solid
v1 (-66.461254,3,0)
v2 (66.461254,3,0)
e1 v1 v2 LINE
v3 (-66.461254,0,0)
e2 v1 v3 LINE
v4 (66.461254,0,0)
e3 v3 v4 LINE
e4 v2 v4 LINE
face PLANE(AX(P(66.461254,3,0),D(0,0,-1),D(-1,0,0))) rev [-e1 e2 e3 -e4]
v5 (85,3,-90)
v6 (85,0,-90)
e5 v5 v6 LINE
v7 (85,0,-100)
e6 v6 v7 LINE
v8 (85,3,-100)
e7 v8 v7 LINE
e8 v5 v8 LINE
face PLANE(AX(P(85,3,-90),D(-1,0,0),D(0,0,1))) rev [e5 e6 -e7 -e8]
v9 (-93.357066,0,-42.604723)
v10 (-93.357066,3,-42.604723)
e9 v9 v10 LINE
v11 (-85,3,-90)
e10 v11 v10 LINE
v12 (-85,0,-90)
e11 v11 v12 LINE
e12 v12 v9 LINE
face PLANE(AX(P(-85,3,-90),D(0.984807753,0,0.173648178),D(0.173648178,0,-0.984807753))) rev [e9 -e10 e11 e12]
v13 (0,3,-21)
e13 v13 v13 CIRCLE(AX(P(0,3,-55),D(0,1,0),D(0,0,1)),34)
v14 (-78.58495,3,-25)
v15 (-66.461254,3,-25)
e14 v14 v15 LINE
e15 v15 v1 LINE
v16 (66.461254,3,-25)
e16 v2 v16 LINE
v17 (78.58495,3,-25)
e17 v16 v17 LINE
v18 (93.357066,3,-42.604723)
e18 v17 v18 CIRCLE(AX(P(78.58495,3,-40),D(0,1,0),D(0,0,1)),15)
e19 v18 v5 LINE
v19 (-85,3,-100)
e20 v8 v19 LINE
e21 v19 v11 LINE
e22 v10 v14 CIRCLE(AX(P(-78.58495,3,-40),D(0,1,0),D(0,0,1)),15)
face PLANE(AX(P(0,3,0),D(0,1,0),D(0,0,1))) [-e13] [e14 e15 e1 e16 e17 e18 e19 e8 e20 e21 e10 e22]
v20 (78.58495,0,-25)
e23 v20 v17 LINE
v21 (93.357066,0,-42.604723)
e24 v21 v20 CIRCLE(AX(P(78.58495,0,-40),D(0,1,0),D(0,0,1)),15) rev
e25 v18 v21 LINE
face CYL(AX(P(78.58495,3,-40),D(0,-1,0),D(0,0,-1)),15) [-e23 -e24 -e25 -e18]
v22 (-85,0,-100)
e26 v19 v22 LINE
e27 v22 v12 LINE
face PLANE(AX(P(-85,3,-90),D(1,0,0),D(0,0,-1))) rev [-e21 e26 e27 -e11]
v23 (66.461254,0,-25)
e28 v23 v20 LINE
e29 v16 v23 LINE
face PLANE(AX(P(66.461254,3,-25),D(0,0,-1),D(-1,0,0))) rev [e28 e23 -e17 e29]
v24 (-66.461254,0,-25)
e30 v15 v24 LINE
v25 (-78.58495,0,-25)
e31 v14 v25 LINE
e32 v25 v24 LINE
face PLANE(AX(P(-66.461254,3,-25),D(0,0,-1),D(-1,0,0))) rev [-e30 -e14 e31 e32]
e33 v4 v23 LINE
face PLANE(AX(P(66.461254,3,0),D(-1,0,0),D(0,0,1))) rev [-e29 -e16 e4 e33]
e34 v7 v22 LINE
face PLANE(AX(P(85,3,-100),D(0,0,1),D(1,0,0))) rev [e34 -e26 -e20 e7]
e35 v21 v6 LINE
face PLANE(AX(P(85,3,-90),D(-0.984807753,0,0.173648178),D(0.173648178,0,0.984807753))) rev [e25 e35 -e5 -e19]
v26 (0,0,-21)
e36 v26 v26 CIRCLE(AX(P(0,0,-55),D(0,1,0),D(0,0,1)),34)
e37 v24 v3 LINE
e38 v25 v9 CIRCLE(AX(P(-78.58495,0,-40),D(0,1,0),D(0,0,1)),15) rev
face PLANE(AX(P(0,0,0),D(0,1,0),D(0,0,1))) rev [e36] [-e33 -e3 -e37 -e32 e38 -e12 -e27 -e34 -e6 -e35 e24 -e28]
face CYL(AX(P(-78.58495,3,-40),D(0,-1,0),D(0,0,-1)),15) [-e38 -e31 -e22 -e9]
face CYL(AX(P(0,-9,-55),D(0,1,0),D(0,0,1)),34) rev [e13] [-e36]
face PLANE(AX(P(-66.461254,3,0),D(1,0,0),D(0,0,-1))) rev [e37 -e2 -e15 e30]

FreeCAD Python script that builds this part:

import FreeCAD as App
import Part
import Sketcher

V = App.Vector
Q = App.Units.Quantity


def edges_at(feature, points):
    """Names of the edges that pass closest to the given points."""
    edges = feature.Shape.Edges
    near = lambda p: min(range(len(edges)), key=lambda i: edges[i].distToShape(Part.Vertex(*p))[0])
    return sorted({f"Edge{near(p) + 1}" for p in points})

doc = App.newDocument("Part")
params = doc.addObject("Spreadsheet::Sheet", "Params")
for row, (alias, value) in enumerate([
    ("sketch1_width", "170 mm"),
    ("sketch1_width2", "30 mm"),
    ("sketch1_height", "10 mm"),
    ("sketch1_height2", "25 mm"),
    ("pad1_length", "3 mm"),
    ("sketch2_diameter", "68 mm"),
    ("pocket1_length", "12 mm"),
    ("fillet_radius", "15 mm"),
], start=1):
    params.set(f"A{row}", alias)
    params.set(f"B{row}", "=" + value)
    params.setAlias(f"B{row}", alias)

body = doc.addObject("PartDesign::Body", "Body")

# Sketch on XZ plane
sketch1 = body.newObject("Sketcher::SketchObject", "Sketch")
sketch1.AttachmentSupport = (doc.getObject("XZ_Plane"), [""])
sketch1.MapMode = "FlatFace"
sketch1.addGeometry(Part.LineSegment(V(85, -90, 0), V(85, -100, 0)), False)
sketch1.addGeometry(Part.LineSegment(V(85, -100, 0), V(-85, -100, 0)), False)
sketch1.addGeometry(Part.LineSegment(V(-85, -100, 0), V(-85, -90, 0)), False)
sketch1.addGeometry(Part.LineSegment(V(-85, -90, 0), V(-96, -25, 0)), False)
sketch1.addGeometry(Part.LineSegment(V(-96, -25, 0), V(-66, -25, 0)), False)
sketch1.addGeometry(Part.LineSegment(V(-66, -25, 0), V(-66, 0, 0)), False)
sketch1.addGeometry(Part.LineSegment(V(-66, 0, 0), V(66, 0, 0)), False)
sketch1.addGeometry(Part.LineSegment(V(66, 0, 0), V(66, -25, 0)), False)
sketch1.addGeometry(Part.LineSegment(V(66, -25, 0), V(96, -25, 0)), False)
sketch1.addGeometry(Part.LineSegment(V(96, -25, 0), V(85, -90, 0)), False)
sketch1.addConstraint(Sketcher.Constraint("Coincident", 0, 2, 1, 1))
sketch1.addConstraint(Sketcher.Constraint("Coincident", 1, 2, 2, 1))
sketch1.addConstraint(Sketcher.Constraint("Coincident", 2, 2, 3, 1))
sketch1.addConstraint(Sketcher.Constraint("Coincident", 3, 2, 4, 1))
sketch1.addConstraint(Sketcher.Constraint("Coincident", 4, 2, 5, 1))
sketch1.addConstraint(Sketcher.Constraint("Coincident", 5, 2, 6, 1))
sketch1.addConstraint(Sketcher.Constraint("Coincident", 6, 2, 7, 1))
sketch1.addConstraint(Sketcher.Constraint("Coincident", 7, 2, 8, 1))
sketch1.addConstraint(Sketcher.Constraint("Coincident", 8, 2, 9, 1))
sketch1.addConstraint(Sketcher.Constraint("Coincident", 9, 2, 0, 1))
sketch1.addConstraint(Sketcher.Constraint("Vertical", 0))
sketch1.addConstraint(Sketcher.Constraint("Horizontal", 1))
sketch1.addConstraint(Sketcher.Constraint("Vertical", 2))
sketch1.addConstraint(Sketcher.Constraint("Horizontal", 4))
sketch1.addConstraint(Sketcher.Constraint("Vertical", 5))
sketch1.addConstraint(Sketcher.Constraint("Horizontal", 6))
sketch1.addConstraint(Sketcher.Constraint("Vertical", 7))
sketch1.addConstraint(Sketcher.Constraint("Horizontal", 8))
sketch1.addConstraint(Sketcher.Constraint("Symmetric", 5, 2, 6, 2, -1, 1))
sketch1.addConstraint(Sketcher.Constraint("Symmetric", 3, 2, 8, 2, -2))
sketch1.addConstraint(Sketcher.Constraint("Symmetric", 2, 2, 9, 2, -2))
sketch1.addConstraint(Sketcher.Constraint("DistanceX", 1, 2, 1, 1, 170.0))
sketch1.addConstraint(Sketcher.Constraint("DistanceX", 4, 1, 4, 2, 30.0))
sketch1.addConstraint(Sketcher.Constraint("DistanceY", 0, 2, 0, 1, 10.0))
sketch1.addConstraint(Sketcher.Constraint("DistanceY", 5, 1, 5, 2, 25.0))
sketch1.addConstraint(Sketcher.Constraint("Angle", 3, Q("100 deg")))
sketch1.addConstraint(Sketcher.Constraint("DistanceY", 0, 2, -1, 1, 100.0))
sketch1.setExpression("Constraints[21]", "Params.sketch1_width")
sketch1.setExpression("Constraints[22]", "Params.sketch1_width2")
sketch1.setExpression("Constraints[23]", "Params.sketch1_height")
sketch1.setExpression("Constraints[24]", "Params.sketch1_height2")
pad1 = body.newObject("PartDesign::Pad", "Pad")
pad1.Profile = sketch1
pad1.setExpression("Length", "Params.pad1_length")
pad1.Reversed = True

# Sketch on XZ plane
sketch2 = body.newObject("Sketcher::SketchObject", "Sketch001")
sketch2.AttachmentSupport = (doc.getObject("XZ_Plane"), [""])
sketch2.MapMode = "FlatFace"
sketch2.AttachmentOffset = App.Placement(V(0, 0, -3), App.Rotation())
sketch2.addGeometry(Part.Circle(V(0, -55, 0), V(0, 0, 1), 34), False)
sketch2.addConstraint(Sketcher.Constraint("PointOnObject", 0, 3, -2))
sketch2.addConstraint(Sketcher.Constraint("Diameter", 0, 68.0))
sketch2.addConstraint(Sketcher.Constraint("DistanceY", 0, 3, -1, 1, 55.0))
sketch2.setExpression("Constraints[1]", "Params.sketch2_diameter")
pocket1 = body.newObject("PartDesign::Pocket", "Pocket")
pocket1.Profile = sketch2
pocket1.setExpression("Length", "Params.pocket1_length")
pocket1.Reversed = True
doc.recompute()

fillet = body.newObject("PartDesign::Fillet", "Fillet")
fillet.Base = (pocket1, edges_at(pocket1, [(-96.461, 1.5, -25), (96.461, 1.5, -25)]))
fillet.setExpression("Radius", "Params.fillet_radius")

doc.recompute()
